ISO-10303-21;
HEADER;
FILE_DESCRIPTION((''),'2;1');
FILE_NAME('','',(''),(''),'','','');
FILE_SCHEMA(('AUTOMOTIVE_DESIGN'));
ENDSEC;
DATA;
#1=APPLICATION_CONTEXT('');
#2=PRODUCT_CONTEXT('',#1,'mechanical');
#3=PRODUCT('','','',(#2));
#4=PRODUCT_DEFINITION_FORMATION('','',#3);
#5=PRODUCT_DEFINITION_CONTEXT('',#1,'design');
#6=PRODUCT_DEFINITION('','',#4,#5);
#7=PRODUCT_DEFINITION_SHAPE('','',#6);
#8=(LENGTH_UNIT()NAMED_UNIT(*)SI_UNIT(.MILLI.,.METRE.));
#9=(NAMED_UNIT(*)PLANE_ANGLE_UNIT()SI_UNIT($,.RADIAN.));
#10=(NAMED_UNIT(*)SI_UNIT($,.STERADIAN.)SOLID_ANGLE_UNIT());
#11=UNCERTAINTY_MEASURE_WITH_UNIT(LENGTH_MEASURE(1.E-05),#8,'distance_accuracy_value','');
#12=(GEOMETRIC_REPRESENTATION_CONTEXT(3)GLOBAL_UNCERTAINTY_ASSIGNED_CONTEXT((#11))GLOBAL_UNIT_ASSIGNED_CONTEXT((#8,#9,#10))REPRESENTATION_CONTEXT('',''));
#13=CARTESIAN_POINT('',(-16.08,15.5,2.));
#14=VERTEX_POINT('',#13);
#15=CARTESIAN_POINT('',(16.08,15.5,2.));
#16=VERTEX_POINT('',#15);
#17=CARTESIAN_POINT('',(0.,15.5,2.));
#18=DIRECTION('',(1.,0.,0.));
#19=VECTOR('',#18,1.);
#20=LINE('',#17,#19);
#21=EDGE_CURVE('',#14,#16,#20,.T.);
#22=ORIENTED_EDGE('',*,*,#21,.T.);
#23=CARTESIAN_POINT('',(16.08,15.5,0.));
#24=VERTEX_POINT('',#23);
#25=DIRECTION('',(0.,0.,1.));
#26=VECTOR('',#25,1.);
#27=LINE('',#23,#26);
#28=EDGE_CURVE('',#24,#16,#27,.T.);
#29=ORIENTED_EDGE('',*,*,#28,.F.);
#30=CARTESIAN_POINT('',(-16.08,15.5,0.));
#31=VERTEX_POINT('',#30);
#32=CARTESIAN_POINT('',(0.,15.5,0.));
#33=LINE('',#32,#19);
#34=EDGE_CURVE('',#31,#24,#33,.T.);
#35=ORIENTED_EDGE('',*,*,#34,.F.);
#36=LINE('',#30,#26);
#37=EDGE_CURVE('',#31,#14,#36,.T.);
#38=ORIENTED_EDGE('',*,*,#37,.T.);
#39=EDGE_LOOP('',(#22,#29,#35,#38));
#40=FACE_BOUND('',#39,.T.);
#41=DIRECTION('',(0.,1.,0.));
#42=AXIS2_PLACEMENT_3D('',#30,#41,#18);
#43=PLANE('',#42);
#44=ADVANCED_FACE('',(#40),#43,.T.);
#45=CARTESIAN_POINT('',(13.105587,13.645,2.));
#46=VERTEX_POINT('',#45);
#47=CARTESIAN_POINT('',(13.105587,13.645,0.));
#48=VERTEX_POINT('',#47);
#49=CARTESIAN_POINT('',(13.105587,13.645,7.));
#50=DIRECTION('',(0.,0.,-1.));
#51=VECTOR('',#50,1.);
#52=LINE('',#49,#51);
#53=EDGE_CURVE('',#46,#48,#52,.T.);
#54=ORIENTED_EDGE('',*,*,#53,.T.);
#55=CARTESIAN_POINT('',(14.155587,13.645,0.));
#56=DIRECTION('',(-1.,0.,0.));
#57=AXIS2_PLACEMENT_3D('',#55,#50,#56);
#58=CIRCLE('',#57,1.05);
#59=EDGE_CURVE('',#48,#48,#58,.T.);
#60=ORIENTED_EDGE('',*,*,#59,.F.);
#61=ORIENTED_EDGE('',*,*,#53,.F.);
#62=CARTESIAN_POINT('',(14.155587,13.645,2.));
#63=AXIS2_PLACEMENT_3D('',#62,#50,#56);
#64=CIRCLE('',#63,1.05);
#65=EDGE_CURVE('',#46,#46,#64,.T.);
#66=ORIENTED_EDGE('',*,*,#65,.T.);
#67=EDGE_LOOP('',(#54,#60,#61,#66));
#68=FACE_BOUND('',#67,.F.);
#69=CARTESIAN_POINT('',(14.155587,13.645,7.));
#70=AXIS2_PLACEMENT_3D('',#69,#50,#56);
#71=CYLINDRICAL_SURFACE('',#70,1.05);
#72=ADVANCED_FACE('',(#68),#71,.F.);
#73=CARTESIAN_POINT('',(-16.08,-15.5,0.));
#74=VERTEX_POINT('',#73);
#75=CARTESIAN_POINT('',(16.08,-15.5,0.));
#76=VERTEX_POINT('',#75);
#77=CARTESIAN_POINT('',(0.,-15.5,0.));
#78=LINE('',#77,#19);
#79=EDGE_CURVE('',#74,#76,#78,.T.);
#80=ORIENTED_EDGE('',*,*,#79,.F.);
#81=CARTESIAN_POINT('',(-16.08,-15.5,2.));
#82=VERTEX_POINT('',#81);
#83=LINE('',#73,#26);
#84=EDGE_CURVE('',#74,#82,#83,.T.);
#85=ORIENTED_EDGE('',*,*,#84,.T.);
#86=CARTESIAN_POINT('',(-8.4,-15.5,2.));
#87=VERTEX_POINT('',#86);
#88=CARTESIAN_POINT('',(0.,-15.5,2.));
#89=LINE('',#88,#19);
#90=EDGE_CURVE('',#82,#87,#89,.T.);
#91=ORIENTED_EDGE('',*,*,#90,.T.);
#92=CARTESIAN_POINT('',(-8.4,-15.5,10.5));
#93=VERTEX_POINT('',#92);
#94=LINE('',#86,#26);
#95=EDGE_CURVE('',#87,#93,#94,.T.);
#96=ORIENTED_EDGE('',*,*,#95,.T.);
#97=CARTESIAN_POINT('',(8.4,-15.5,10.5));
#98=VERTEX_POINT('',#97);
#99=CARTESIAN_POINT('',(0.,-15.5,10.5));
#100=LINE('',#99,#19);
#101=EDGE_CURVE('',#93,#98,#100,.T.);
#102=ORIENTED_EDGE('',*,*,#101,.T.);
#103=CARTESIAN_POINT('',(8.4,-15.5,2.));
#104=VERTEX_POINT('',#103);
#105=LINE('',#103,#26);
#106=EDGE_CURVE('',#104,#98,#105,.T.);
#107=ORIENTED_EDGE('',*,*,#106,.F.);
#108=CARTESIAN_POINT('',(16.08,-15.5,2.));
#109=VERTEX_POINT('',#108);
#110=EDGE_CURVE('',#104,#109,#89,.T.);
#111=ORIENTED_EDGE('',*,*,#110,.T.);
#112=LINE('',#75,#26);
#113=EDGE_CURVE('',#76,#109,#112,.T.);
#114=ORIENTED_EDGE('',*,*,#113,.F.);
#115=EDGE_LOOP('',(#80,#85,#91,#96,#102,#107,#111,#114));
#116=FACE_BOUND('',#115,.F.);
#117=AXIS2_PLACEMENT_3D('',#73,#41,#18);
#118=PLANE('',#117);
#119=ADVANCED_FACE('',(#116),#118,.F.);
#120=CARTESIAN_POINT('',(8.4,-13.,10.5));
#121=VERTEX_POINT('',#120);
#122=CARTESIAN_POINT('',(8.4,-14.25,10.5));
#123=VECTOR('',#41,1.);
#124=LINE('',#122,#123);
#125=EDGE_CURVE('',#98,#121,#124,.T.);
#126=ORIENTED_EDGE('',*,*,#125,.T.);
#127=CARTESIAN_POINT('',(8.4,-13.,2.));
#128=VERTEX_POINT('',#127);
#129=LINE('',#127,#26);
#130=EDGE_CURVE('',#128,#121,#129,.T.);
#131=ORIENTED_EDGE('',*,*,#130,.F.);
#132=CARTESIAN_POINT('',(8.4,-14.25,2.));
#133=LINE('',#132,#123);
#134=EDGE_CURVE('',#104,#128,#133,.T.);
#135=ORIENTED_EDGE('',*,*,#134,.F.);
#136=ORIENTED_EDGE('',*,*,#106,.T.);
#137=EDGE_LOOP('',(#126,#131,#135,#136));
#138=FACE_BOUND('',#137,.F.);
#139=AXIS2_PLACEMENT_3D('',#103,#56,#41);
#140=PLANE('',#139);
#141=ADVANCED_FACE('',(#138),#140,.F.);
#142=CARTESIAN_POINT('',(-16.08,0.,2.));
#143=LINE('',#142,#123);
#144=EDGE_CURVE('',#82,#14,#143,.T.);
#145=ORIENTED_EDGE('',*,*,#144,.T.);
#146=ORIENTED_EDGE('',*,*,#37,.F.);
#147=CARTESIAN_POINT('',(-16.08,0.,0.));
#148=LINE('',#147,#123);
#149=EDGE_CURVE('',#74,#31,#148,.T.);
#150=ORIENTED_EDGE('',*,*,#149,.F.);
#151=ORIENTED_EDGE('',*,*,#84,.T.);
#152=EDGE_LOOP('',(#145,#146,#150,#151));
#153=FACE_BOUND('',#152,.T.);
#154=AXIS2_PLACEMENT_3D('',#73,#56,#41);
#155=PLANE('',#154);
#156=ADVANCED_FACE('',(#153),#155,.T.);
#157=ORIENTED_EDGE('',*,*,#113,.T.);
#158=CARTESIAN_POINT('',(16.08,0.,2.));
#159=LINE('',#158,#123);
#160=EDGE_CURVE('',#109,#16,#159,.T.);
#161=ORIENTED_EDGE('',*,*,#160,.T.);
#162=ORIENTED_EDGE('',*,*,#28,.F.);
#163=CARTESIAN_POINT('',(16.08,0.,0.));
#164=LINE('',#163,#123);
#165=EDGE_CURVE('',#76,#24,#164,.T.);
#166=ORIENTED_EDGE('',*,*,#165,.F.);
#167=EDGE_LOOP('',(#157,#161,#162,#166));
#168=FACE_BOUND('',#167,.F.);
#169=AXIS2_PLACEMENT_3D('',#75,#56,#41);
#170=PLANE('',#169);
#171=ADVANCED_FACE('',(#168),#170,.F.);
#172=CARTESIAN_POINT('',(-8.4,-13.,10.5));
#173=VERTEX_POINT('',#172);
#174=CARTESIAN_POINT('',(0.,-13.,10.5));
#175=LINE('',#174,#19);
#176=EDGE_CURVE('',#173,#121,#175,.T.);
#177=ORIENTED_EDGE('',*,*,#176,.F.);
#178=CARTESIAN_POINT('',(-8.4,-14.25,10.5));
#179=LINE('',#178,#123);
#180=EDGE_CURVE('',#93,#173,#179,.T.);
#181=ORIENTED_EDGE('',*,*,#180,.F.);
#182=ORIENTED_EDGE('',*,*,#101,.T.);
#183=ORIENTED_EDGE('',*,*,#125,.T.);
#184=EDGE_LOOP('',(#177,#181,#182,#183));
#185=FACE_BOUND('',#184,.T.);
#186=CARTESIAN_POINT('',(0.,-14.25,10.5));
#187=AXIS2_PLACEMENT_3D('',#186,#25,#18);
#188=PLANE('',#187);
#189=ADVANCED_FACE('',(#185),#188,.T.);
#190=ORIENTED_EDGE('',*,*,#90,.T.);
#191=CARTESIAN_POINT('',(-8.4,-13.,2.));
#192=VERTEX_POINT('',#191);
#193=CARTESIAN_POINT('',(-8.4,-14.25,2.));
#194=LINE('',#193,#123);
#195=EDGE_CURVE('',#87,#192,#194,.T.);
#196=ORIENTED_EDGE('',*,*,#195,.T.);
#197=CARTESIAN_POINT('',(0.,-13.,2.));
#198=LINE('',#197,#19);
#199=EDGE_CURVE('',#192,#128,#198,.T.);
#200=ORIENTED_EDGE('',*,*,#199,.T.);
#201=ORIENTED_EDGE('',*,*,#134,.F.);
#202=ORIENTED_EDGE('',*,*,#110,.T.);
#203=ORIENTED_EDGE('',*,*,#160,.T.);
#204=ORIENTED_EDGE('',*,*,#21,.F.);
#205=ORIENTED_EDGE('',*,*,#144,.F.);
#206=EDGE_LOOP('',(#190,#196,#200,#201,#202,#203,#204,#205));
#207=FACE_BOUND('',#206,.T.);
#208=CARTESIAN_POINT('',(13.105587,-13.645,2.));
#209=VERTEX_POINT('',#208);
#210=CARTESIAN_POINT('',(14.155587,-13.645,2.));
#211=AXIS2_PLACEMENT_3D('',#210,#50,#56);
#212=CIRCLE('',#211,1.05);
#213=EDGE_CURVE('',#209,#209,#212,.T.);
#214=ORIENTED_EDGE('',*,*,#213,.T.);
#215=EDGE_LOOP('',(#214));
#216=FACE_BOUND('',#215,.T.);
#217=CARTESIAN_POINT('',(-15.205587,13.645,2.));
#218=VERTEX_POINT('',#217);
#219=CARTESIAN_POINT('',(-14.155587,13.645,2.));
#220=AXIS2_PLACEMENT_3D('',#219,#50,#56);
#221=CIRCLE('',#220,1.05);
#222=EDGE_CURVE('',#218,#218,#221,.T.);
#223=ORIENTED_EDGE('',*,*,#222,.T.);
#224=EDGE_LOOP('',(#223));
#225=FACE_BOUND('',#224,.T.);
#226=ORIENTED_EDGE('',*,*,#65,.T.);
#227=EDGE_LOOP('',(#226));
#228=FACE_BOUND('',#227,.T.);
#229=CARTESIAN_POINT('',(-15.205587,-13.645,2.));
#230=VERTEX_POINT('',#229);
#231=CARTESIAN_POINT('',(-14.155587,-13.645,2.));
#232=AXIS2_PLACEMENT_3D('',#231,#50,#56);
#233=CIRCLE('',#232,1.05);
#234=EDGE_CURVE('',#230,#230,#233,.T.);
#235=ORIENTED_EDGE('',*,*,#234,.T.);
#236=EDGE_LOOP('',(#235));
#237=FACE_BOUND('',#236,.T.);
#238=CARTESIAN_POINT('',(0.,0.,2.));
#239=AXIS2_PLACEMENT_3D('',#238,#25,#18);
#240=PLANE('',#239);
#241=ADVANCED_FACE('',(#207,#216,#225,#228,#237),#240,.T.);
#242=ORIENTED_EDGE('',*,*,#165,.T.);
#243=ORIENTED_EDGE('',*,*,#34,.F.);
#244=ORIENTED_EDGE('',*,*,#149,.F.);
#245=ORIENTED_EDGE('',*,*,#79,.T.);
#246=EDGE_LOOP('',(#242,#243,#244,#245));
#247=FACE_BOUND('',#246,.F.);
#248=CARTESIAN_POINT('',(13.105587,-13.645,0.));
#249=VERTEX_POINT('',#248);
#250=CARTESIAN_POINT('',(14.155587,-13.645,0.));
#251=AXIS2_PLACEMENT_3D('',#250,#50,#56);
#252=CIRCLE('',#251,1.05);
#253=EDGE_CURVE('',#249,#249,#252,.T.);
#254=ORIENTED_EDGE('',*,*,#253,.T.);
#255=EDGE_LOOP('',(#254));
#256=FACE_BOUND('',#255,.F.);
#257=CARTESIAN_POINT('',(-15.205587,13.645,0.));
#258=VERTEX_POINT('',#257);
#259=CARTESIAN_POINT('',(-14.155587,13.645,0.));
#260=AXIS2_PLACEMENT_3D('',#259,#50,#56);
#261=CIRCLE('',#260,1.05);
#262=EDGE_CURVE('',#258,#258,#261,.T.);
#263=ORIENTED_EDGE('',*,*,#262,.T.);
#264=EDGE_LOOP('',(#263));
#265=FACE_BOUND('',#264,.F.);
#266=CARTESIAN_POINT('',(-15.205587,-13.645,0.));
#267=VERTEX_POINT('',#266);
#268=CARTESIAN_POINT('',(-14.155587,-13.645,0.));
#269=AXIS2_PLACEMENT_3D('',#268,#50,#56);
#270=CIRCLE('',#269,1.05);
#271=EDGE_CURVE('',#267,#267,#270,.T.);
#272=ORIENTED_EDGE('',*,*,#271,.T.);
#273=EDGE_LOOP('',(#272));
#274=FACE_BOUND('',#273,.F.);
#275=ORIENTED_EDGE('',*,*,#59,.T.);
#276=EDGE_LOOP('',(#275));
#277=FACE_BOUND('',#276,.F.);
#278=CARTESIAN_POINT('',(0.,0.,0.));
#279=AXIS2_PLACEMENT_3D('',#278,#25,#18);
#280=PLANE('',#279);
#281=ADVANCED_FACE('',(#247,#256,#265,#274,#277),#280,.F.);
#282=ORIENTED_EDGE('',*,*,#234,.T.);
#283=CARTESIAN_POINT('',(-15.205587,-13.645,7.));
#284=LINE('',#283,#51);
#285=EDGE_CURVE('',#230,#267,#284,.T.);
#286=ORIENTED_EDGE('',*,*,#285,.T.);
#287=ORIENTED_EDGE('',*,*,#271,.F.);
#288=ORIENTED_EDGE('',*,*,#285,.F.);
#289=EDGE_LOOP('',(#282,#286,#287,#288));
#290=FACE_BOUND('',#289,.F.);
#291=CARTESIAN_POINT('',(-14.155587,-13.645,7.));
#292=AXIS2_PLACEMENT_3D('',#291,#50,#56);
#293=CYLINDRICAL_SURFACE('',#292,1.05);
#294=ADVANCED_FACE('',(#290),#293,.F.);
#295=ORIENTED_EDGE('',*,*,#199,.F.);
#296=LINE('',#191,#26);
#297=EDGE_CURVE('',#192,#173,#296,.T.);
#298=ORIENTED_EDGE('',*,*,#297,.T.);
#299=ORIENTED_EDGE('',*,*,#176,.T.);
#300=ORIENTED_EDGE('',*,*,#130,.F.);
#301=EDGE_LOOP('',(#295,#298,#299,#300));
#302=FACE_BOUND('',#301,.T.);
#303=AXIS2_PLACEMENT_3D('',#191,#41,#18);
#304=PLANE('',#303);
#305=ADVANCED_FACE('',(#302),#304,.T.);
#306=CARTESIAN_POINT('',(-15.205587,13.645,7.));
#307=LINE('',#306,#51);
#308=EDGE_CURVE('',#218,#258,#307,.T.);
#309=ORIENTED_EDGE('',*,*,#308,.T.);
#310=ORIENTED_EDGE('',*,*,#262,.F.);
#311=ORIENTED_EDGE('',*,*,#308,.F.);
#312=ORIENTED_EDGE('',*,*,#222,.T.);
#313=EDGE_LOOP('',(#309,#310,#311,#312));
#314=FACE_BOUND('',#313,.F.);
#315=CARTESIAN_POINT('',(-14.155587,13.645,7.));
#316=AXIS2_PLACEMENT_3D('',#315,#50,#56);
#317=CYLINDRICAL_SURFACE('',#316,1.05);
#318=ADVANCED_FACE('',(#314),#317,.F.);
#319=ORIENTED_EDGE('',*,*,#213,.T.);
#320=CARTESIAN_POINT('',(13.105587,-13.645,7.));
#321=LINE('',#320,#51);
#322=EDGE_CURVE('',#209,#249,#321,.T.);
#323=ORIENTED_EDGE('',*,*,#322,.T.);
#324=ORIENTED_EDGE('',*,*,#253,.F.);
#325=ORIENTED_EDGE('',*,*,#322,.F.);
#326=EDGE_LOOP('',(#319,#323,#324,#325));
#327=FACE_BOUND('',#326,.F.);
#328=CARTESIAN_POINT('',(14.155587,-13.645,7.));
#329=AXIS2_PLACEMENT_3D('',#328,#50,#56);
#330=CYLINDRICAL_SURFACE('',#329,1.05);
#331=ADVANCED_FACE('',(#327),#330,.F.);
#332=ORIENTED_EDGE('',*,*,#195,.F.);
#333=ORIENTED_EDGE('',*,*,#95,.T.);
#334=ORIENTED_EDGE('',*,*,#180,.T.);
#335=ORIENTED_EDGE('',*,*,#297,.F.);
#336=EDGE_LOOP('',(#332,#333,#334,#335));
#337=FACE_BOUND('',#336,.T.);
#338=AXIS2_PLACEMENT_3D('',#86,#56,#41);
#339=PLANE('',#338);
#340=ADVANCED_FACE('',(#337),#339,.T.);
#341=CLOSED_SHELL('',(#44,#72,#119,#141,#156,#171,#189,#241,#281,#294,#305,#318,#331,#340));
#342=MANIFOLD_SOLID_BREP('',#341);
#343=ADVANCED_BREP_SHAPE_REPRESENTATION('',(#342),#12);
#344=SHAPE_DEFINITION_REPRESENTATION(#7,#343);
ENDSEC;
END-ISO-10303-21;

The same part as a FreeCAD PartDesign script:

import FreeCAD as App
import Part
import Sketcher

V = App.Vector

doc = App.newDocument("Part")
body = doc.addObject("PartDesign::Body", "Body")

# Sketch on XY plane
sketch1 = body.newObject("Sketcher::SketchObject", "Sketch")
sketch1.AttachmentSupport = (doc.getObject("XY_Plane"), [""])
sketch1.MapMode = "FlatFace"
sketch1.addGeometry([
    Part.LineSegment(V(-16, 16, 0), V(-16, -16, 0)),
    Part.LineSegment(V(-16, -16, 0), V(16, -16, 0)),
    Part.LineSegment(V(16, -16, 0), V(16, 16, 0)),
    Part.LineSegment(V(16, 16, 0), V(-16, 16, 0)),
], False)
sketch1.addConstraint([
    Sketcher.Constraint("Coincident", 0, 2, 1, 1),
    Sketcher.Constraint("Coincident", 1, 2, 2, 1),
    Sketcher.Constraint("Coincident", 2, 2, 3, 1),
    Sketcher.Constraint("Coincident", 3, 2, 0, 1),
    Sketcher.Constraint("Vertical", 0),
    Sketcher.Constraint("Horizontal", 1),
    Sketcher.Constraint("Vertical", 2),
    Sketcher.Constraint("Horizontal", 3),
    Sketcher.Constraint("Symmetric", 0, 2, 2, 2, -1, 1),
    Sketcher.Constraint("DistanceY", 0, 2, 0, 1, 31.0),
    Sketcher.Constraint("DistanceX", 1, 1, 1, 2, 32.16),
])
pad1 = body.newObject("PartDesign::Pad", "Pad")
pad1.Profile = sketch1
pad1.Length = 2

# Sketch on XY plane
sketch2 = body.newObject("Sketcher::SketchObject", "Sketch001")
sketch2.AttachmentSupport = (doc.getObject("XY_Plane"), [""])
sketch2.MapMode = "FlatFace"
sketch2.AttachmentOffset = App.Placement(V(0, 0, 2), App.Rotation())
sketch2.addGeometry([
    Part.Circle(V(-14.2, 13.6, 0), V(0, 0, 1), 1.1),
    Part.Circle(V(14.2, 13.6, 0), V(0, 0, 1), 1.1),
    Part.Circle(V(-14.2, -13.6, 0), V(0, 0, 1), 1.1),
    Part.Circle(V(14.2, -13.6, 0), V(0, 0, 1), 1.1),
], False)
sketch2.addConstraint([
    Sketcher.Constraint("Equal", 0, 1),
    Sketcher.Constraint("Equal", 1, 2),
    Sketcher.Constraint("Equal", 2, 3),
    Sketcher.Constraint("Symmetric", 1, 3, 2, 3, -1, 1),
    Sketcher.Constraint("Symmetric", 0, 3, 3, 3, -1, 1),
    Sketcher.Constraint("Symmetric", 0, 3, 1, 3, -2),
    Sketcher.Constraint("Diameter", 0, 2.1),
    Sketcher.Constraint("DistanceY", 2, 3, 0, 3, 27.29),
    Sketcher.Constraint("DistanceX", 0, 3, -1, 1, 14.155587),
])
doc.recompute()
hole = body.newObject("PartDesign::Hole", "Hole")
hole.Profile = sketch2
hole.ThreadType = "None"
hole.Diameter = 2.1
hole.DepthType = "Dimension"
hole.Depth = 5
hole.DrillPoint = "Flat"

# Sketch on XY plane
sketch3 = body.newObject("Sketcher::SketchObject", "Sketch002")
sketch3.AttachmentSupport = (doc.getObject("XY_Plane"), [""])
sketch3.MapMode = "FlatFace"
sketch3.AttachmentOffset = App.Placement(V(0, 0, 2), App.Rotation())
sketch3.addGeometry([
    Part.LineSegment(V(-8.4, -13, 0), V(-8.4, -15.5, 0)),
    Part.LineSegment(V(-8.4, -15.5, 0), V(8.4, -15.5, 0)),
    Part.LineSegment(V(8.4, -15.5, 0), V(8.4, -13, 0)),
    Part.LineSegment(V(8.4, -13, 0), V(-8.4, -13, 0)),
], False)
sketch3.addConstraint([
    Sketcher.Constraint("Coincident", 0, 2, 1, 1),
    Sketcher.Constraint("Coincident", 1, 2, 2, 1),
    Sketcher.Constraint("Coincident", 2, 2, 3, 1),
    Sketcher.Constraint("Coincident", 3, 2, 0, 1),
    Sketcher.Constraint("Vertical", 0),
    Sketcher.Constraint("Horizontal", 1),
    Sketcher.Constraint("Vertical", 2),
    Sketcher.Constraint("Horizontal", 3),
    Sketcher.Constraint("DistanceX", 1, 1, 1, 2, 16.8),
    Sketcher.Constraint("DistanceY", 0, 2, 0, 1, 2.5),
    Sketcher.Constraint("DistanceY", 2, 2, -1, 1, 13.0),
    Sketcher.Constraint("DistanceX", 0, 2, -1, 1, 8.4),
])
pad2 = body.newObject("PartDesign::Pad", "Pad001")
pad2.Profile = sketch3
pad2.Length = 8.5

doc.recompute()
